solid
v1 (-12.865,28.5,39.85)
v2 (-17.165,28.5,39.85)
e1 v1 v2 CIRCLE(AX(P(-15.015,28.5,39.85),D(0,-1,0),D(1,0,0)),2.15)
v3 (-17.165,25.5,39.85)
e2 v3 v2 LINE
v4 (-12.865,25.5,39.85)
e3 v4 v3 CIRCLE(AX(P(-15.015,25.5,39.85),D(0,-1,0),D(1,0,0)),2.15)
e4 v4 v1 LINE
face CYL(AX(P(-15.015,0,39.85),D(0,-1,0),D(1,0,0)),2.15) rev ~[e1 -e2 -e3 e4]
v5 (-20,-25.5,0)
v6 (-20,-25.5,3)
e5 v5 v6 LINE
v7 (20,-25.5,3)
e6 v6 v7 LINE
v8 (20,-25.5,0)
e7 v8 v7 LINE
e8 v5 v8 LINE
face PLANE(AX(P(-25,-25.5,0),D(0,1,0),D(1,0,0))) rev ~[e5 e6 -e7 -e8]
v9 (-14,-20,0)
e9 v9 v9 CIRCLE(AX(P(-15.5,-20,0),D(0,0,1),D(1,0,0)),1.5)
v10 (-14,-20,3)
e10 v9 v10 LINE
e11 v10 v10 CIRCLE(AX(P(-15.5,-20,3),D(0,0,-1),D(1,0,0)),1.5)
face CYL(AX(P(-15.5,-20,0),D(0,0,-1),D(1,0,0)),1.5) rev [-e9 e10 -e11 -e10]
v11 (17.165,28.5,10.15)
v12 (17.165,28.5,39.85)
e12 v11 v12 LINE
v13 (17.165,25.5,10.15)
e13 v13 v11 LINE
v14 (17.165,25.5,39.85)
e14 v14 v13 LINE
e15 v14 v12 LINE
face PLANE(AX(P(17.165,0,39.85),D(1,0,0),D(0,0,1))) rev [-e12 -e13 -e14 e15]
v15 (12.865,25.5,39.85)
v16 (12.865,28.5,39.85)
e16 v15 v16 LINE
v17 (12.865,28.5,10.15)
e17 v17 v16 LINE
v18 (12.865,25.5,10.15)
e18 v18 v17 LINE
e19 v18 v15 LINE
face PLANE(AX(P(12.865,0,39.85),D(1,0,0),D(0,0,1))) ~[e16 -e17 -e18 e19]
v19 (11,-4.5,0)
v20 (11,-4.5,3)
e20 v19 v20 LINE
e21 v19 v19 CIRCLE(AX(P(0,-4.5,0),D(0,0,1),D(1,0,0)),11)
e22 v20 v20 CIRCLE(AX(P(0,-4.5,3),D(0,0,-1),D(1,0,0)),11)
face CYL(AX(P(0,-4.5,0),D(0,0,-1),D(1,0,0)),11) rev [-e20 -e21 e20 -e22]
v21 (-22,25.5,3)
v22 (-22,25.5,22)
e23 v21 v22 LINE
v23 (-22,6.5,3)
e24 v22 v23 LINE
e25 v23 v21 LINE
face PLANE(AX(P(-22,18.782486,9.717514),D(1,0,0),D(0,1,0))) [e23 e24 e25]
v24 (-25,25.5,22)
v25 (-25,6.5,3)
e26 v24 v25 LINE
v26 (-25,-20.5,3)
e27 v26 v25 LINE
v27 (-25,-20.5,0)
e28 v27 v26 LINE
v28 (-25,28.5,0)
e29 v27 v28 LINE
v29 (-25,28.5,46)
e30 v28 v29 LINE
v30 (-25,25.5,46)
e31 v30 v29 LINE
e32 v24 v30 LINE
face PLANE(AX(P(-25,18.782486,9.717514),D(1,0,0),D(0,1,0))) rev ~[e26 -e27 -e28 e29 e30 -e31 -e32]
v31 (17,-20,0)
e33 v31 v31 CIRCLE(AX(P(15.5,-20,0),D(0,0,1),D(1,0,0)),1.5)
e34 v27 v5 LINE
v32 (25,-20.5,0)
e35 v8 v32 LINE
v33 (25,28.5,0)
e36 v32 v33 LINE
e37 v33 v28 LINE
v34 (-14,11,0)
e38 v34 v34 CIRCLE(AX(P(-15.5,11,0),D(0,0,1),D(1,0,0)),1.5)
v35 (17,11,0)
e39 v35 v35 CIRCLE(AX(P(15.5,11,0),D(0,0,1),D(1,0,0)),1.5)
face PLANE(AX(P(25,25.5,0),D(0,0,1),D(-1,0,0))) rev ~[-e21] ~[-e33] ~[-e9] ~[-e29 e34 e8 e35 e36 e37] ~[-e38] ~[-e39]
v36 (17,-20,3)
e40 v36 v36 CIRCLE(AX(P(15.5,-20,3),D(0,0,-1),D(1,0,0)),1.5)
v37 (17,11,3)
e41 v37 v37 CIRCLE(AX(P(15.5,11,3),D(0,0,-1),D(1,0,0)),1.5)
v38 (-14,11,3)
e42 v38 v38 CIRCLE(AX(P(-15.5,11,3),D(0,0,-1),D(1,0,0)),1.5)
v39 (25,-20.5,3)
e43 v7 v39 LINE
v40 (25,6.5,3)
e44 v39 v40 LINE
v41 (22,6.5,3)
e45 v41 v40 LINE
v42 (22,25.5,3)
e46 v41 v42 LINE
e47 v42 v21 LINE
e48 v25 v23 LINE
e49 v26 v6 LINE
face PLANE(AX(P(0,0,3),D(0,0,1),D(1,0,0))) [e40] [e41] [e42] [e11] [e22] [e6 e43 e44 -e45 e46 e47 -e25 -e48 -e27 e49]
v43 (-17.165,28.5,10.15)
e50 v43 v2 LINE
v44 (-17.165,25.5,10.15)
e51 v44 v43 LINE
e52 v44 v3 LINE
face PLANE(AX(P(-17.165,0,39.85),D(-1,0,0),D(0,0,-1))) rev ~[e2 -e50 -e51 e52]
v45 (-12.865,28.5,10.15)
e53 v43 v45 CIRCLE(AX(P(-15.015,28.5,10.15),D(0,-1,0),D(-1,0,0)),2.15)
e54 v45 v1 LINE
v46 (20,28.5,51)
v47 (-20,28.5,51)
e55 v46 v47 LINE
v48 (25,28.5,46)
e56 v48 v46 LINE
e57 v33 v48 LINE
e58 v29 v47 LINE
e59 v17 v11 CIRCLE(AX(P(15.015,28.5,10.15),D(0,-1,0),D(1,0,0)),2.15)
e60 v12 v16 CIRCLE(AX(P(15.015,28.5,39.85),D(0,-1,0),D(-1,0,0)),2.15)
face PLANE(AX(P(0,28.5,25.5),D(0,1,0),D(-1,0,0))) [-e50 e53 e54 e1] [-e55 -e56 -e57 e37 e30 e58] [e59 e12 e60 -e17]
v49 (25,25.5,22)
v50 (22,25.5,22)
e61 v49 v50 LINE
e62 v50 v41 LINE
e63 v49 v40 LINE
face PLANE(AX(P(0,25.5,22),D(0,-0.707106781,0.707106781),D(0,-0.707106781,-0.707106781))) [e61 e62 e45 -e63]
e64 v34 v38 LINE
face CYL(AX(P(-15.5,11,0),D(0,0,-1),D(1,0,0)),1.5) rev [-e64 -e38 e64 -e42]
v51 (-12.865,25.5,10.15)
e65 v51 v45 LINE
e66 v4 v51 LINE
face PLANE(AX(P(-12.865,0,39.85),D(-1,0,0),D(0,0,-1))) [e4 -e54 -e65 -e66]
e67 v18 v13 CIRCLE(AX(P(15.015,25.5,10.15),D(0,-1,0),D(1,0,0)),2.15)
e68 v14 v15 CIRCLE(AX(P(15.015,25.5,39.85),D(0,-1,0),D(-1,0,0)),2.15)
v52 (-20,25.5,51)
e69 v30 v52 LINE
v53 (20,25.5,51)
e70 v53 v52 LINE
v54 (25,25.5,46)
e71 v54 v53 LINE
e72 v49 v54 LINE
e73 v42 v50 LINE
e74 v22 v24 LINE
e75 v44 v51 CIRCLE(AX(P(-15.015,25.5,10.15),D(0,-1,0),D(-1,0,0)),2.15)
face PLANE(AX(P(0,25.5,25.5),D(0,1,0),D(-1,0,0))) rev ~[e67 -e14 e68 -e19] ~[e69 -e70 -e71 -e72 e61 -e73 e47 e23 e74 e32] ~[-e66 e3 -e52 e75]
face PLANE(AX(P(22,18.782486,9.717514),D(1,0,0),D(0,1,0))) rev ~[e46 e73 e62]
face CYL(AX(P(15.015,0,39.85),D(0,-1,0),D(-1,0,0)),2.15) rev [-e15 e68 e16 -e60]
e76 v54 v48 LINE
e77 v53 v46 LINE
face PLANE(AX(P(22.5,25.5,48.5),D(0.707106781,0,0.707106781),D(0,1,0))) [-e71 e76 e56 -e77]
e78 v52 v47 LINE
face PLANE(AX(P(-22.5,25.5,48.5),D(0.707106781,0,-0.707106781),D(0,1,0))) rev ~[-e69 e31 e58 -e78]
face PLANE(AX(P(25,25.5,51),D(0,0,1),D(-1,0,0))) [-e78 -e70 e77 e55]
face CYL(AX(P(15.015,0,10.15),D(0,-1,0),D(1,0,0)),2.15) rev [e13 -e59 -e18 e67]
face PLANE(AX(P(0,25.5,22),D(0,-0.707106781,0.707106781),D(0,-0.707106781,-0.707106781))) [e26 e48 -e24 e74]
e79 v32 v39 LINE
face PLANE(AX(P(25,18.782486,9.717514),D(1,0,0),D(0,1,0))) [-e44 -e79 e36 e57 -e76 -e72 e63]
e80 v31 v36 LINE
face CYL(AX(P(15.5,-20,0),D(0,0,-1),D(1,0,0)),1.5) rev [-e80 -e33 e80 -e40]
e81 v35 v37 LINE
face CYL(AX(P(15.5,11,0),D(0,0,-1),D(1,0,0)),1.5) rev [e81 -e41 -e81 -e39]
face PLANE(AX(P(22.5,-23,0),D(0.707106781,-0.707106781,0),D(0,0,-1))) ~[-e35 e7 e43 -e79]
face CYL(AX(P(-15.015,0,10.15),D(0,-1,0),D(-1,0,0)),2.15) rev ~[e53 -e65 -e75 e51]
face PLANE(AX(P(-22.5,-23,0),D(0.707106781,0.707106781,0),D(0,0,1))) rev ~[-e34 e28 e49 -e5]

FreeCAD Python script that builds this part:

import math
import FreeCAD as App
import Part
import Sketcher
from FreeCAD import Vector
Q = App.Units.Quantity


def edges_at(feature, points):
    """Names of the edges that pass closest to the given points."""
    edges = feature.Shape.Edges
    near = lambda p: min(range(len(edges)), key=lambda i: edges[i].distToShape(Part.Vertex(*p))[0])
    return sorted({f"Edge{near(p) + 1}" for p in points})


def add_polygon(sketch, points):
    """Adds a closed chain of lines whose ends are joined by coincident constraints."""
    first, n = sketch.GeometryCount, len(points)
    for a, b in zip(points, points[1:] + points[:1]):
        sketch.addGeometry(Part.LineSegment(App.Vector(*a, 0), App.Vector(*b, 0)), False)
    for i in range(n):
        sketch.addConstraint(Sketcher.Constraint("Coincident", first + i, 2, first + (i + 1) % n, 1))

doc = App.newDocument("Part")
body = doc.addObject("PartDesign::Body", "Body")

# Sketch on XY plane
sketch1 = doc.addObject("Sketcher::SketchObject", "Sketch")
body.addObject(sketch1)
sketch1.AttachmentSupport = (doc.XY_Plane, [""])
sketch1.MapMode = "FlatFace"
add_polygon(sketch1, [(-25, 26), (-25, -26), (25, -26), (25, 26)])  # lines 0-3
sketch1.addConstraint([
    Sketcher.Constraint("Vertical", 0),
    Sketcher.Constraint("Horizontal", 1),
    Sketcher.Constraint("Vertical", 2),
    Sketcher.Constraint("Horizontal", 3),
    Sketcher.Constraint("Symmetric", 0, 2, 2, 2, -1, 1),
    Sketcher.Constraint("DistanceX", 1, 1, 1, 2, Q("50 mm")),
    Sketcher.Constraint("DistanceY", 0, 2, 0, 1, Q("51 mm")),
])
pad1 = doc.addObject("PartDesign::Pad", "Pad")
body.addObject(pad1)
pad1.Profile = sketch1
pad1.Length = 3
doc.recompute()

chamfer = doc.addObject("PartDesign::Chamfer", "Chamfer")
body.addObject(chamfer)
chamfer.Base = (pad1, edges_at(pad1, [(25, -25.5, 1.5), (-25, -25.5, 1.5)]))
chamfer.Size = 5

# Sketch on XZ plane
sketch2 = doc.addObject("Sketcher::SketchObject", "Sketch001")
body.addObject(sketch2)
sketch2.AttachmentSupport = (doc.XZ_Plane, [""])
sketch2.MapMode = "FlatFace"
sketch2.AttachmentOffset = App.Placement(Vector(0, 0, -25.5), App.Rotation())
add_polygon(sketch2, [(25, 51), (25, 0), (-25, 0), (-25, 51)])  # lines 0-3
sketch2.addConstraint([
    Sketcher.Constraint("Vertical", 0),
    Sketcher.Constraint("Horizontal", 1),
    Sketcher.Constraint("Vertical", 2),
    Sketcher.Constraint("Horizontal", 3),
    Sketcher.Constraint("Symmetric", 0, 2, 1, 2, -1, 1),
    Sketcher.Constraint("DistanceX", 1, 2, 1, 1, Q("50 mm")),
    Sketcher.Constraint("DistanceY", 0, 2, 0, 1, Q("51 mm")),
])
pad2 = doc.addObject("PartDesign::Pad", "Pad001")
body.addObject(pad2)
pad2.Profile = sketch2
pad2.Length = 3
pad2.Reversed = True
doc.recompute()

chamfer2 = doc.addObject("PartDesign::Chamfer", "Chamfer001")
body.addObject(chamfer2)
chamfer2.Base = (pad2, edges_at(pad2, [(-25, 27, 51), (25, 27, 51)]))
chamfer2.Size = 5

# Sketch on XZ plane
sketch3 = doc.addObject("Sketcher::SketchObject", "Sketch002")
body.addObject(sketch3)
sketch3.AttachmentSupport = (doc.XZ_Plane, [""])
sketch3.MapMode = "FlatFace"
sketch3.addGeometry([
    Part.ArcOfCircle(Part.Circle(Vector(-15, 39.9, 0), Vector(0, 0, 1), 2.1), math.radians(0), math.radians(180)),
    Part.LineSegment(Vector(-17.2, 39.9, 0), Vector(-17.2, 10.2, 0)),
    Part.ArcOfCircle(Part.Circle(Vector(-15, 10.2, 0), Vector(0, 0, 1), 2.1), math.radians(180), math.radians(360)),
    Part.LineSegment(Vector(-12.9, 10.2, 0), Vector(-12.9, 39.9, 0)),
], False)
sketch3.addConstraint([
    Sketcher.Constraint("Tangent", 0, 2, 1, 1),
    Sketcher.Constraint("Tangent", 1, 2, 2, 1),
    Sketcher.Constraint("Tangent", 2, 2, 3, 1),
    Sketcher.Constraint("Tangent", 3, 2, 0, 1),
    Sketcher.Constraint("Vertical", 1),
    Sketcher.Constraint("Vertical", 3),
    Sketcher.Constraint("Radius", 0, Q("2.15 mm")),
    Sketcher.Constraint("DistanceY", 1, 2, 1, 1, Q("29.7 mm")),
    Sketcher.Constraint("DistanceY", -1, 1, 0, 3, Q("39.85 mm")),
    Sketcher.Constraint("DistanceX", 0, 3, -1, 1, Q("15.015 mm")),
])
pocket1 = doc.addObject("PartDesign::Pocket", "Pocket")
body.addObject(pocket1)
pocket1.Profile = sketch3
pocket1.Type = "ThroughAll"
doc.recompute()

mirrored = doc.addObject("PartDesign::Mirrored", "Mirrored")
body.addObject(mirrored)
mirrored.Originals = [pocket1]
mirrored.MirrorPlane = (doc.YZ_Plane, [""])
body.Tip = mirrored

# Sketch on XY plane
sketch4 = doc.addObject("Sketcher::SketchObject", "Sketch003")
body.addObject(sketch4)
sketch4.AttachmentSupport = (doc.XY_Plane, [""])
sketch4.MapMode = "FlatFace"
sketch4.addGeometry([
    Part.Circle(Vector(-15.5, 11, 0), Vector(0, 0, 1), 1.5),  # 0
    Part.Circle(Vector(15.5, 11, 0), Vector(0, 0, 1), 1.5),  # 1
    Part.Circle(Vector(15.5, -20, 0), Vector(0, 0, 1), 1.5),  # 2
    Part.Circle(Vector(-15.5, -20, 0), Vector(0, 0, 1), 1.5),  # 3
    Part.Circle(Vector(0, -4.5, 0), Vector(0, 0, 1), 11),  # 4
], False)
sketch4.addConstraint([
    Sketcher.Constraint("Equal", 0, 1),
    Sketcher.Constraint("Equal", 1, 2),
    Sketcher.Constraint("Equal", 2, 3),
    Sketcher.Constraint("Symmetric", 0, 3, 1, 3, -2),
    Sketcher.Constraint("Symmetric", 2, 3, 3, 3, -2),
    Sketcher.Constraint("PointOnObject", 4, 3, -2),
    Sketcher.Constraint("Vertical", 1, 3, 2, 3),
    Sketcher.Constraint("Diameter", 0, Q("3 mm")),
    Sketcher.Constraint("Diameter", 4, Q("22 mm")),
    Sketcher.Constraint("DistanceY", -1, 1, 0, 3, Q("11 mm")),
    Sketcher.Constraint("DistanceY", 2, 3, -1, 1, Q("20 mm")),
    Sketcher.Constraint("DistanceX", 0, 3, 1, 3, Q("31 mm")),
    Sketcher.Constraint("DistanceY", 4, 3, -1, 1, Q("4.5 mm")),
])
pocket2 = doc.addObject("PartDesign::Pocket", "Pocket001")
body.addObject(pocket2)
pocket2.Profile = sketch4
pocket2.Type = "ThroughAll"
pocket2.Midplane = True

# Sketch on YZ plane
sketch5 = doc.addObject("Sketcher::SketchObject", "Sketch004")
body.addObject(sketch5)
sketch5.AttachmentSupport = (doc.YZ_Plane, [""])
sketch5.MapMode = "FlatFace"
add_polygon(sketch5, [(26, 22), (6, 3), (26, 3)])  # lines 0-2
sketch5.addConstraint([
    Sketcher.Constraint("Horizontal", 1),
    Sketcher.Constraint("Vertical", 2),
    Sketcher.Constraint("Equal", 1, 2),
    Sketcher.Constraint("DistanceX", 1, 1, 1, 2, Q("19 mm")),
    Sketcher.Constraint("DistanceY", -1, 1, 0, 2, Q("3 mm")),
    Sketcher.Constraint("DistanceX", -1, 1, 0, 2, Q("6.5 mm")),
])
pad3 = doc.addObject("PartDesign::Pad", "Pad002")
body.addObject(pad3)
pad3.Profile = sketch5
pad3.Length = 50
pad3.Midplane = True

# Sketch on YZ plane
sketch6 = doc.addObject("Sketcher::SketchObject", "Sketch005")
body.addObject(sketch6)
sketch6.AttachmentSupport = (doc.YZ_Plane, [""])
sketch6.MapMode = "FlatFace"
add_polygon(sketch6, [(26, 22), (6, 3), (26, 3)])  # lines 0-2
sketch6.addConstraint([
    Sketcher.Constraint("Horizontal", 1),
    Sketcher.Constraint("Vertical", 2),
    Sketcher.Constraint("Equal", 1, 2),
    Sketcher.Constraint("DistanceX", 1, 1, 1, 2, Q("19 mm")),
    Sketcher.Constraint("DistanceY", -1, 1, 0, 2, Q("3 mm")),
    Sketcher.Constraint("DistanceX", -1, 1, 0, 2, Q("6.5 mm")),
])
pocket3 = doc.addObject("PartDesign::Pocket", "Pocket002")
body.addObject(pocket3)
pocket3.Profile = sketch6
pocket3.Length = 44
pocket3.Midplane = True

doc.recompute()
